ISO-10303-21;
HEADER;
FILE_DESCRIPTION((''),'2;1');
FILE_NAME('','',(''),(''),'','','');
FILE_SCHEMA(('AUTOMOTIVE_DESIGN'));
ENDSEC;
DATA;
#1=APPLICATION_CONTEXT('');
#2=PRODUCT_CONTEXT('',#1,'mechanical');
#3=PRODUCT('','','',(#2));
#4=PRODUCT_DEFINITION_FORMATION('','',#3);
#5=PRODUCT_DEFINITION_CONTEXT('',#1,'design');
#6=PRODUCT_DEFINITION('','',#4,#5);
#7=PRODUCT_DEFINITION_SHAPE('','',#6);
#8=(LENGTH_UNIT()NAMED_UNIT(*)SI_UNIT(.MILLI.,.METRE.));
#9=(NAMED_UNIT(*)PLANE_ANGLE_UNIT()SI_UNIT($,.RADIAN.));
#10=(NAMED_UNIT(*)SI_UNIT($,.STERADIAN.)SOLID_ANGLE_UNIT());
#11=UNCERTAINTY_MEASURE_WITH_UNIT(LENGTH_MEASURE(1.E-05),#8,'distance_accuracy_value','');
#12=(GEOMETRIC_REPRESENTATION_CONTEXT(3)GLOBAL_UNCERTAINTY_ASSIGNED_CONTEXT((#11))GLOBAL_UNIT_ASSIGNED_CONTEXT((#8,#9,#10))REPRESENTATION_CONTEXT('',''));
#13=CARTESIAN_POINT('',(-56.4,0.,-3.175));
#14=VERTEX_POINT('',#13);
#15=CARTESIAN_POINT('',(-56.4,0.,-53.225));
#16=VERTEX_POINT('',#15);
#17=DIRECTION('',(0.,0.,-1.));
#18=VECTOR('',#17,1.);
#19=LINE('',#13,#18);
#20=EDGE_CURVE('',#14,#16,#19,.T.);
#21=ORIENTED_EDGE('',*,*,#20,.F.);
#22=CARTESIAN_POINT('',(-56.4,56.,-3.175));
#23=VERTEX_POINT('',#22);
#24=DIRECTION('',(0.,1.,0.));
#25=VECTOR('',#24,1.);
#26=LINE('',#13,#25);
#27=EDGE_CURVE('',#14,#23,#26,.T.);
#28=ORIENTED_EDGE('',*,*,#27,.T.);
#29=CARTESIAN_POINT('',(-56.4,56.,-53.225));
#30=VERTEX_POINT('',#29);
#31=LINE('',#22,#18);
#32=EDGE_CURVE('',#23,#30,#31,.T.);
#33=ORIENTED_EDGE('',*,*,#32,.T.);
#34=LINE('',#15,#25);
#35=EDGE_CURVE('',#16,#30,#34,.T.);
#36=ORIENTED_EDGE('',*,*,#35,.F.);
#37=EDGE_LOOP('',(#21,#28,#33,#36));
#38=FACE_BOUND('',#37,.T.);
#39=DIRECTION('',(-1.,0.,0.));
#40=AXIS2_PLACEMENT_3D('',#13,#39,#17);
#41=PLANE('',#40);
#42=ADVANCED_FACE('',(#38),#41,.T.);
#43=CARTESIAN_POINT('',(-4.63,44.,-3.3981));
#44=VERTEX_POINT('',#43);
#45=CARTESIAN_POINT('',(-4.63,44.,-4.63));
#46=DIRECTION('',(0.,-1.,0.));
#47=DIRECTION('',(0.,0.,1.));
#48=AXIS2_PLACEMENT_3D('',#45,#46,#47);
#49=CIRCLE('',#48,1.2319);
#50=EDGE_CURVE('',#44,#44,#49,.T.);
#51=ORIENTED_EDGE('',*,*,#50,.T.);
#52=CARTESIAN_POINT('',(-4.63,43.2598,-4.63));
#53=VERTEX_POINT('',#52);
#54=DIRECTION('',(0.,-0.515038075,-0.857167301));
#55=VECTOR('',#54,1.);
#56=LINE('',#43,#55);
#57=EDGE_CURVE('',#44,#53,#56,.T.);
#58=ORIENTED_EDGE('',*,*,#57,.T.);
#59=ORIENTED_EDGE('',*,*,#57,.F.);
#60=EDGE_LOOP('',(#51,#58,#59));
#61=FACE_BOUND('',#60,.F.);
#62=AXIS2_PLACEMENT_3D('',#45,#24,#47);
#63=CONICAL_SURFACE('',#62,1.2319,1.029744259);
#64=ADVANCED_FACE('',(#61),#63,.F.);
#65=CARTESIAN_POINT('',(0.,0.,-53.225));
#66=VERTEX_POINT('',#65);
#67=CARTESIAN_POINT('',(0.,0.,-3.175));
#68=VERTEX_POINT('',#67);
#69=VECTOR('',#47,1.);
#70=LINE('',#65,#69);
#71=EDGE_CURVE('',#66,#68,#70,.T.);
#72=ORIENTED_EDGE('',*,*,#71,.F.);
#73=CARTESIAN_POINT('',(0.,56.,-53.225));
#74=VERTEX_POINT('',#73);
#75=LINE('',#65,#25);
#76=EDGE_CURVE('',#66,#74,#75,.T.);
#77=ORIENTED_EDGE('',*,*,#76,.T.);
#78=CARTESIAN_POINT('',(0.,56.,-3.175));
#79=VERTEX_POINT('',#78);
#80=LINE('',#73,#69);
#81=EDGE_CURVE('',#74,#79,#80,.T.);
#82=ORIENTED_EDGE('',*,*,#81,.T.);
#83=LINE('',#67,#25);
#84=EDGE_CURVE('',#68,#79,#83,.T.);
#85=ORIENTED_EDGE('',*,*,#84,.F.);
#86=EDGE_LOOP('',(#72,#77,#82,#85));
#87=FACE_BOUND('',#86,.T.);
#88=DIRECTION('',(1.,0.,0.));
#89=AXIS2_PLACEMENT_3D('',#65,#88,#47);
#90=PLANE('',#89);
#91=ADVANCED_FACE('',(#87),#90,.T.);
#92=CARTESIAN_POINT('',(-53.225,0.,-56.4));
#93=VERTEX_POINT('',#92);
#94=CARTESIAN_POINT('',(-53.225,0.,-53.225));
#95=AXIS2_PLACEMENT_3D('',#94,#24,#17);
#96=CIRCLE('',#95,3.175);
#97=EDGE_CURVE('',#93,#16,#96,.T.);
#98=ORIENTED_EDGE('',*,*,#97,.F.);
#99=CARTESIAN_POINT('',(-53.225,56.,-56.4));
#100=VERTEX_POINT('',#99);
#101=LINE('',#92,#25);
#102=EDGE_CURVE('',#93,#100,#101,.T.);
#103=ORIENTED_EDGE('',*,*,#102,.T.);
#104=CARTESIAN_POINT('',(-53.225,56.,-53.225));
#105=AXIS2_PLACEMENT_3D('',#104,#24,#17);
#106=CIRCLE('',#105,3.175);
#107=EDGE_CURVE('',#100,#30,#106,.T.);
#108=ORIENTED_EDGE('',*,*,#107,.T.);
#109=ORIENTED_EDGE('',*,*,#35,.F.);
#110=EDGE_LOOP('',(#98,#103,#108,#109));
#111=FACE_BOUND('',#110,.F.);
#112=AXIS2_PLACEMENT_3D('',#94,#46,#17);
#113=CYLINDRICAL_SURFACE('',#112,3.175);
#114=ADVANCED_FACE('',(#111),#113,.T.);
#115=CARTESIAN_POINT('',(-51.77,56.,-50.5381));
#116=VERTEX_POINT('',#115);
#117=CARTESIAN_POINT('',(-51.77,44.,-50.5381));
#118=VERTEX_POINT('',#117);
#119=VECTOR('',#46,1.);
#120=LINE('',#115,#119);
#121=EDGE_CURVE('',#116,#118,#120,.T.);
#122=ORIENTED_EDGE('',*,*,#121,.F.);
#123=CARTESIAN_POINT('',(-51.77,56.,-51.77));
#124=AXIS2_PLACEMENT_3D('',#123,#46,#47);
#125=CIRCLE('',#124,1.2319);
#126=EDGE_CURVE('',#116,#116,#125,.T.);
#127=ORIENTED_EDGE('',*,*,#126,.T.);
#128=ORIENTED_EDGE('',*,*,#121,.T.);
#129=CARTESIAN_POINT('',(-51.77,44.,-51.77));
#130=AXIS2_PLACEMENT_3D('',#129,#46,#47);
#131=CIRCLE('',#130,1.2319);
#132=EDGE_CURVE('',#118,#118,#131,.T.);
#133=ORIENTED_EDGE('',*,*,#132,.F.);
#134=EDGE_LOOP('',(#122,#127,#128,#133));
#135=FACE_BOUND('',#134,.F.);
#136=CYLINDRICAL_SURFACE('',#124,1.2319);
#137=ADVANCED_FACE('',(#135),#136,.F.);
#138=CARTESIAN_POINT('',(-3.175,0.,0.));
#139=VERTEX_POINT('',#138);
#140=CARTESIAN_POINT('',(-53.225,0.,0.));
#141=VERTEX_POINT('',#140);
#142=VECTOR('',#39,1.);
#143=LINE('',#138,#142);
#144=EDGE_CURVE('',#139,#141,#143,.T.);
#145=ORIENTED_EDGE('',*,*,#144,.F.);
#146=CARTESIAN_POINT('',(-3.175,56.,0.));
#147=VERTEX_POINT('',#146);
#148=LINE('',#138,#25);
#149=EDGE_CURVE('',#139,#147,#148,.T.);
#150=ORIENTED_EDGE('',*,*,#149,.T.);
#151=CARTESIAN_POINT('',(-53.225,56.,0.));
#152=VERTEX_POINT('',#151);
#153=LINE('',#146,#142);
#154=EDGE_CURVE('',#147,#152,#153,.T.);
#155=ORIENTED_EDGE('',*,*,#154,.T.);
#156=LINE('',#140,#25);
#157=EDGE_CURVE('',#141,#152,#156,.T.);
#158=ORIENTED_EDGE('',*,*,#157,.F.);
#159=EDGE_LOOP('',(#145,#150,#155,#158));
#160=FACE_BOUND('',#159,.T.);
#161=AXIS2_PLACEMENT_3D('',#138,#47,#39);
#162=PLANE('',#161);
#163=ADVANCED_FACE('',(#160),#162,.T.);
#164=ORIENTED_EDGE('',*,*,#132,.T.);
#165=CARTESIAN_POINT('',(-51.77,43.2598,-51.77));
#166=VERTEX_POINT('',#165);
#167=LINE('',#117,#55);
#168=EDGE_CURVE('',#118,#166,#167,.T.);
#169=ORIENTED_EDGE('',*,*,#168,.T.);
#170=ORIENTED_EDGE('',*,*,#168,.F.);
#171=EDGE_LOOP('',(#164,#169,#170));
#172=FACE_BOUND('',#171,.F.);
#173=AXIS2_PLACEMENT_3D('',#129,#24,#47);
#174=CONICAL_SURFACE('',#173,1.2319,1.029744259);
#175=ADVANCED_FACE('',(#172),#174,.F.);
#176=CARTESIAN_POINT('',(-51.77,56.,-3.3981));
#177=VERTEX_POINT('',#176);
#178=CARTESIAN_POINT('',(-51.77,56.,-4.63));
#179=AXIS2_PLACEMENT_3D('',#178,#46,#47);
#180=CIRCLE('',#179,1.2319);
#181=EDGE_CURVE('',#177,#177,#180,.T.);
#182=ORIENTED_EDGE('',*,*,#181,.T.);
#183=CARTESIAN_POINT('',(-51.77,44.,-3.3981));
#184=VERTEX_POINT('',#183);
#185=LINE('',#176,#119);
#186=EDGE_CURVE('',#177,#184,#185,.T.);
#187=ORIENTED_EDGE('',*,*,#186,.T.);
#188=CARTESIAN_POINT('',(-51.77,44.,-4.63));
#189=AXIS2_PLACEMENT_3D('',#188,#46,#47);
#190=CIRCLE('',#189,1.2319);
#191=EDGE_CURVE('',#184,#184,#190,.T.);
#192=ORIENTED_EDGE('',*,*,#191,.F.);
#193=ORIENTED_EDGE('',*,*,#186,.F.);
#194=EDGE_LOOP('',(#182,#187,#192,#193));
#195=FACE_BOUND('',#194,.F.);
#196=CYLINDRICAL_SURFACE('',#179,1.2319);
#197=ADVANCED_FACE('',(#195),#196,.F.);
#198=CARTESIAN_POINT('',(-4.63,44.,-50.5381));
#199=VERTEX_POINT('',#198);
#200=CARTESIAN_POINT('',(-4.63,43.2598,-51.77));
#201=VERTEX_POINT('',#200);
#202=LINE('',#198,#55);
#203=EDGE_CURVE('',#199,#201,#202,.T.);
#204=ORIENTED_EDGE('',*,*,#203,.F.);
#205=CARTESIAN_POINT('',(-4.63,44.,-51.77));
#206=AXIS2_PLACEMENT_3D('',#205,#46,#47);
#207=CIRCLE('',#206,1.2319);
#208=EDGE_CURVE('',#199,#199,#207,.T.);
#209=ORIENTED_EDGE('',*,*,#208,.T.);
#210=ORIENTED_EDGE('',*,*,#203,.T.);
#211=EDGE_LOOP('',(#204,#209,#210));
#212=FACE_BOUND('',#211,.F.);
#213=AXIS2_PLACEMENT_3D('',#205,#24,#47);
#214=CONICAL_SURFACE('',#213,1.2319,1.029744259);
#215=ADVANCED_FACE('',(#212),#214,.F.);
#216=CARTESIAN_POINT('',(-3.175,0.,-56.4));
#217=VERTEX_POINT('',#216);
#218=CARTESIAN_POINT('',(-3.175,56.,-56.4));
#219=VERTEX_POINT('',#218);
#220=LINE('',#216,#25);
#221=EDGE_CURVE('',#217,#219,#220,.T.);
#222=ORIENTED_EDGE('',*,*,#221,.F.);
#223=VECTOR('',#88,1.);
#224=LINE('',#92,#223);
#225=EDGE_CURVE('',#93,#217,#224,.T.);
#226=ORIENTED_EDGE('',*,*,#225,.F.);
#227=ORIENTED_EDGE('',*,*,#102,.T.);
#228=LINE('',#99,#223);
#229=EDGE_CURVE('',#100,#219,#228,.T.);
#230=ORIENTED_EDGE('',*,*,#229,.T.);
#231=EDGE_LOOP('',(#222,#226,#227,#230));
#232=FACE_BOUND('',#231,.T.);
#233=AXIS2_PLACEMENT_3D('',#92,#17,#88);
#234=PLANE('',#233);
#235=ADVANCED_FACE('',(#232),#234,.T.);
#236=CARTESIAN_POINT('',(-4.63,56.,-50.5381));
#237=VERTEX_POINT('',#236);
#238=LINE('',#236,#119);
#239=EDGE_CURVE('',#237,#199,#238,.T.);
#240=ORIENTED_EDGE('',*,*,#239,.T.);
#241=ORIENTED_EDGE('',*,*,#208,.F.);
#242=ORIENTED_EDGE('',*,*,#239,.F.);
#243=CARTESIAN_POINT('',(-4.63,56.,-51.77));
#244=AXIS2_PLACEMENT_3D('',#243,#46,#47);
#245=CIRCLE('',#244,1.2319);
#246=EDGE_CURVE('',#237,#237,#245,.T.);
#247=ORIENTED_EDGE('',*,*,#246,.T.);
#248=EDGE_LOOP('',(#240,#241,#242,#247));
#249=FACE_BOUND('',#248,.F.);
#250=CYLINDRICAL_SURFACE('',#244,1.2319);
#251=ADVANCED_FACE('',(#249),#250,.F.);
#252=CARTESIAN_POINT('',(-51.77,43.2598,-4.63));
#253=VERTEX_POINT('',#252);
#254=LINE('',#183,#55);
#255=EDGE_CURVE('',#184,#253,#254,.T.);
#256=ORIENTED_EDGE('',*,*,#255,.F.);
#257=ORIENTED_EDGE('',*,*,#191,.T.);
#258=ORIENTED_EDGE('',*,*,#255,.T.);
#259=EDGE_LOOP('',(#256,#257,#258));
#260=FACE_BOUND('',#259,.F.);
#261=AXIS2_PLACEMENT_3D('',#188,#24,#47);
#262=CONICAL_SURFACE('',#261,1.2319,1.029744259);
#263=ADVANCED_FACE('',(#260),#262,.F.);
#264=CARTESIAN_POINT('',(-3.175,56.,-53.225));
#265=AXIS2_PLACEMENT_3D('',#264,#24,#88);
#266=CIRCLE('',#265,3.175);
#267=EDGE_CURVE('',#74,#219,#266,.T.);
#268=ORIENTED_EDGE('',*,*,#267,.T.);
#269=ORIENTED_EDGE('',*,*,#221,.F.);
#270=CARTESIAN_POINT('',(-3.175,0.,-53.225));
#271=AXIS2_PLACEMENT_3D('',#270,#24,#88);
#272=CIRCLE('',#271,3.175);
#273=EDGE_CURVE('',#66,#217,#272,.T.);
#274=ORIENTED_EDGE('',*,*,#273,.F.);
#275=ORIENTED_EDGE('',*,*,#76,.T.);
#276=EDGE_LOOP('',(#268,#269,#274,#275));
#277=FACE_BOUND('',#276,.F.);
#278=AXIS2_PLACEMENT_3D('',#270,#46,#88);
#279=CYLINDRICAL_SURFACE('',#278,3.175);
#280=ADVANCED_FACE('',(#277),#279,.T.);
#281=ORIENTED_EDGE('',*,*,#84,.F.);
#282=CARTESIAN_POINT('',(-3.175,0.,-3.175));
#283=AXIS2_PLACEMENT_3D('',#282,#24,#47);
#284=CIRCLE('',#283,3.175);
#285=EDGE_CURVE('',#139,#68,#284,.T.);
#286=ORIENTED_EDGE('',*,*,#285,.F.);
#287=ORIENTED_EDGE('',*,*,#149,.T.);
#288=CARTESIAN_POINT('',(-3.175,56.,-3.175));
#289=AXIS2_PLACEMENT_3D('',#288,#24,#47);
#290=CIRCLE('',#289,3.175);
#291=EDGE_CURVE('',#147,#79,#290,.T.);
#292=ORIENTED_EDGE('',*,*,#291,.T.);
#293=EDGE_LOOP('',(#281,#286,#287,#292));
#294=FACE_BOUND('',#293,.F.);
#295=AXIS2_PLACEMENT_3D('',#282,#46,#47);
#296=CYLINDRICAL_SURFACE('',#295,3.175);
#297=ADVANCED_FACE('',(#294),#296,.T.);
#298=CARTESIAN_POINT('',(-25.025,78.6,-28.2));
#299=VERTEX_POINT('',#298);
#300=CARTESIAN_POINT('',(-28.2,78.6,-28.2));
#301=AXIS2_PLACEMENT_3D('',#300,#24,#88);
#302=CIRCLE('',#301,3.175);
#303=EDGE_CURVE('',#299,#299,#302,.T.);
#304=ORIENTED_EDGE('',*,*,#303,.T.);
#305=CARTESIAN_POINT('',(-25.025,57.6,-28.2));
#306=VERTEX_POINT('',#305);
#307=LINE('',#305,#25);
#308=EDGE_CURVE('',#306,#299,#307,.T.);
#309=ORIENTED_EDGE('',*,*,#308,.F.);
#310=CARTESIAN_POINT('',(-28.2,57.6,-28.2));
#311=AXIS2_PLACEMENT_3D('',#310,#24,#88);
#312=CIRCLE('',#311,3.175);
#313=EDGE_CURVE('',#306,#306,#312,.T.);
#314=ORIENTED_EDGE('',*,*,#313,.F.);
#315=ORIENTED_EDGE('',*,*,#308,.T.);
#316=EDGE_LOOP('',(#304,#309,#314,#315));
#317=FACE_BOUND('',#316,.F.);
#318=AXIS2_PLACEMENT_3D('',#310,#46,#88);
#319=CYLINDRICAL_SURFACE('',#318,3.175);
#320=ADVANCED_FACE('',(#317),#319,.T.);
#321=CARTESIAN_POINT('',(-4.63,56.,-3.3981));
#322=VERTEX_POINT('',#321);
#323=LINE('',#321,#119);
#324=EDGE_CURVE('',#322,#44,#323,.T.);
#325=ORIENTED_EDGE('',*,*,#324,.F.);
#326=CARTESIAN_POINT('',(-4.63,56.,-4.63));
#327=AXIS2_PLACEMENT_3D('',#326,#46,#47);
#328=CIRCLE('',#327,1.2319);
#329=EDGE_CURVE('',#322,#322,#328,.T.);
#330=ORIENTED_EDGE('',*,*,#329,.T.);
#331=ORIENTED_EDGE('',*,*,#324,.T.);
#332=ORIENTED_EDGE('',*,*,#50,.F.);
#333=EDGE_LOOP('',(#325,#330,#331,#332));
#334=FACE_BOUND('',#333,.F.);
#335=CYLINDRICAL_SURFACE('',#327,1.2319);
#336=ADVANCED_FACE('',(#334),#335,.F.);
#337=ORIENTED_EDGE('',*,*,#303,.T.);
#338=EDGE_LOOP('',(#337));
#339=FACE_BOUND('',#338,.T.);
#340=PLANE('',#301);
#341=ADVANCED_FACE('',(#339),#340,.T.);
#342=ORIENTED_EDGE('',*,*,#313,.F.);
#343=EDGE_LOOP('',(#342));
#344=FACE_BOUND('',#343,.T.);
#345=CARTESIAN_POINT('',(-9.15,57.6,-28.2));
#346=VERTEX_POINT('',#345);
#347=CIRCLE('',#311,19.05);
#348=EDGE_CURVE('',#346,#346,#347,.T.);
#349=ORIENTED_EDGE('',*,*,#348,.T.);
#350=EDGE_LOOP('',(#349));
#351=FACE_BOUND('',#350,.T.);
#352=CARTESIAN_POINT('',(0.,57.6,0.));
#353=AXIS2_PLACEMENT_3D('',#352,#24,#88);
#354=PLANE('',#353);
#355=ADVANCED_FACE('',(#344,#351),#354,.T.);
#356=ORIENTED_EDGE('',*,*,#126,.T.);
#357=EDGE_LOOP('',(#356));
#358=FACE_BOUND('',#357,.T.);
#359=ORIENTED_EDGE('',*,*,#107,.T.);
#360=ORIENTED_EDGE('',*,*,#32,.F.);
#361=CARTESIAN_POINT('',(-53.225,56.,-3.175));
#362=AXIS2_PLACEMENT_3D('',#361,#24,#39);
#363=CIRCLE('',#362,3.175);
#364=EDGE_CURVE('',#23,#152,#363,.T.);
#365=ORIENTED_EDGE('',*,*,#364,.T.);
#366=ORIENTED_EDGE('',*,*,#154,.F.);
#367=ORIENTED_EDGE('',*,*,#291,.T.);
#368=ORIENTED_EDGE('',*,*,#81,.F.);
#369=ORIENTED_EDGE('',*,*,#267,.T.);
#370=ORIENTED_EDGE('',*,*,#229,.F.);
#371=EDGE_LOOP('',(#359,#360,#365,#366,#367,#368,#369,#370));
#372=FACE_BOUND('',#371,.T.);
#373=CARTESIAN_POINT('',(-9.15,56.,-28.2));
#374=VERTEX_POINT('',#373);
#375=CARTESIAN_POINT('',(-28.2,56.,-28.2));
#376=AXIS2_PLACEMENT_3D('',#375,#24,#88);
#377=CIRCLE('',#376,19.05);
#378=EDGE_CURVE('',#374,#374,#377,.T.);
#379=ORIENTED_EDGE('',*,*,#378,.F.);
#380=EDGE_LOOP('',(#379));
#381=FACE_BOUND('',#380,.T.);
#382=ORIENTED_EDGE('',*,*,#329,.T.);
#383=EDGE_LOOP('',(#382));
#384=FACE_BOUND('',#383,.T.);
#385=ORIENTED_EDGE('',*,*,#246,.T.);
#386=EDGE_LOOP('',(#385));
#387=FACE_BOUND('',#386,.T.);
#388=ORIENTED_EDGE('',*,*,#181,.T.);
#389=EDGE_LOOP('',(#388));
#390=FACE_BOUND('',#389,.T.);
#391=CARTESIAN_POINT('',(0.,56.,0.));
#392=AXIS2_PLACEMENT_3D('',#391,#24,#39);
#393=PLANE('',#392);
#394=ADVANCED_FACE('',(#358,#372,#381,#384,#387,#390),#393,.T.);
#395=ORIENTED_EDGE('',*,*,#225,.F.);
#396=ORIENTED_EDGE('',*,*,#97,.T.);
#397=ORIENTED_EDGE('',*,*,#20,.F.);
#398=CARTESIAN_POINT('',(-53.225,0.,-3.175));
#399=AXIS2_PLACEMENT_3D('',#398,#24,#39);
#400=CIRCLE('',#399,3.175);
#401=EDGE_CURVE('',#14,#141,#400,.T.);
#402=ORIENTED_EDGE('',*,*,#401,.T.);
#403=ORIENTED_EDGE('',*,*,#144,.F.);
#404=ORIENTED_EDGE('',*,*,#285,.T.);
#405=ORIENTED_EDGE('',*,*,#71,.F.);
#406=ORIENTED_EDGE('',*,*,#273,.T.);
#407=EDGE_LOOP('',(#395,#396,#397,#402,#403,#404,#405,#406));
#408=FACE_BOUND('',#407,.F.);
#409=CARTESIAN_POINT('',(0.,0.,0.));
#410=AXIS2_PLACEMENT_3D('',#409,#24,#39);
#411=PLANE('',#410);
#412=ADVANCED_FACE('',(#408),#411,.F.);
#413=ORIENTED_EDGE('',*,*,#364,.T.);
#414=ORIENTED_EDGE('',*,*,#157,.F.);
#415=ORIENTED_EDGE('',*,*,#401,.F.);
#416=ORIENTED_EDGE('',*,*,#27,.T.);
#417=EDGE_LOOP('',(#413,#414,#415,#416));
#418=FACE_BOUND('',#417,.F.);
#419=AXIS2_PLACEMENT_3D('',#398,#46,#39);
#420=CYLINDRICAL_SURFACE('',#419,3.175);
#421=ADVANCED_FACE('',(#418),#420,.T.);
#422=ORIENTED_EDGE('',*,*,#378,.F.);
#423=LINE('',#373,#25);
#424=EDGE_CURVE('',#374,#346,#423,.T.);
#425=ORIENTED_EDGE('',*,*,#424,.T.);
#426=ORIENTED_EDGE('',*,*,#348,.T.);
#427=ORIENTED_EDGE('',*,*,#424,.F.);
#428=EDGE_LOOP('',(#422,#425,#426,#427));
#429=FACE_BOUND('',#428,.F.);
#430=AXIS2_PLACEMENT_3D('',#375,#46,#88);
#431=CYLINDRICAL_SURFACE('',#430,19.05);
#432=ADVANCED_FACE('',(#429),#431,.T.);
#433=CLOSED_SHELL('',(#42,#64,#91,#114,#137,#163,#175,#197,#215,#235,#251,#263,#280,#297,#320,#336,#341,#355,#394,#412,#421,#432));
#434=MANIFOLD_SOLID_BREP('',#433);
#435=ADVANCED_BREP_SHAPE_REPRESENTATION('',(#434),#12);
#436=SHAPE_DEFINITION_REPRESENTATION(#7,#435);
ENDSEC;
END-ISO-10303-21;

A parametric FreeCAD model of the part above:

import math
import FreeCAD as App
import Part
import Sketcher

V = App.Vector
Q = App.Units.Quantity

doc = App.newDocument("Part")
body = doc.addObject("PartDesign::Body", "Body")

sketch1 = body.newObject("Sketcher::SketchObject", "Sketch")
sketch1.AttachmentSupport = (doc.getObject("XZ_Plane"), [""])
sketch1.MapMode = "FlatFace"
sketch1.addGeometry(Part.LineSegment(V(-53.2, 0, 0), V(-3.2, 0, 0)), False)
sketch1.addGeometry(Part.ArcOfCircle(Part.Circle(V(-3.2, -3.2, 0), V(0, 0, 1), 3.2), math.radians(0), math.radians(90)), False)
sketch1.addGeometry(Part.LineSegment(V(0, -3.2, 0), V(0, -53.2, 0)), False)
sketch1.addGeometry(Part.ArcOfCircle(Part.Circle(V(-3.2, -53.2, 0), V(0, 0, 1), 3.2), math.radians(-90), math.radians(0)), False)
sketch1.addGeometry(Part.LineSegment(V(-3.2, -56.4, 0), V(-53.2, -56.4, 0)), False)
sketch1.addGeometry(Part.ArcOfCircle(Part.Circle(V(-53.2, -53.2, 0), V(0, 0, 1), 3.2), math.radians(180), math.radians(270)), False)
sketch1.addGeometry(Part.LineSegment(V(-56.4, -53.2, 0), V(-56.4, -3.2, 0)), False)
sketch1.addGeometry(Part.ArcOfCircle(Part.Circle(V(-53.2, -3.2, 0), V(0, 0, 1), 3.2), math.radians(90), math.radians(180)), False)
sketch1.addConstraint(Sketcher.Constraint("Tangent", 0, 2, 1, 2))
sketch1.addConstraint(Sketcher.Constraint("Tangent", 1, 1, 2, 1))
sketch1.addConstraint(Sketcher.Constraint("Tangent", 2, 2, 3, 2))
sketch1.addConstraint(Sketcher.Constraint("Tangent", 3, 1, 4, 1))
sketch1.addConstraint(Sketcher.Constraint("Tangent", 4, 2, 5, 2))
sketch1.addConstraint(Sketcher.Constraint("Tangent", 5, 1, 6, 1))
sketch1.addConstraint(Sketcher.Constraint("Tangent", 6, 2, 7, 2))
sketch1.addConstraint(Sketcher.Constraint("Tangent", 7, 1, 0, 1))
sketch1.addConstraint(Sketcher.Constraint("Horizontal", 0))
sketch1.addConstraint(Sketcher.Constraint("Vertical", 2))
sketch1.addConstraint(Sketcher.Constraint("Horizontal", 4))
sketch1.addConstraint(Sketcher.Constraint("Vertical", 6))
sketch1.addConstraint(Sketcher.Constraint("Equal", 1, 3))
sketch1.addConstraint(Sketcher.Constraint("Equal", 3, 5))
sketch1.addConstraint(Sketcher.Constraint("Equal", 5, 7))
sketch1.addConstraint(Sketcher.Constraint("PointOnObject", 0, 2, -1))
sketch1.addConstraint(Sketcher.Constraint("PointOnObject", 1, 1, -2))
sketch1.addConstraint(Sketcher.Constraint("Equal", 4, 2))
sketch1.addConstraint(Sketcher.Constraint("Radius", 1, Q("0.125 in")))
sketch1.addConstraint(Sketcher.Constraint("DistanceY", 3, 1, -1, 1, Q("56.4 mm")))
pad1 = body.newObject("PartDesign::Pad", "Pad")
pad1.Profile = sketch1
pad1.Length = 56
pad1.Reversed = True

sketch2 = body.newObject("Sketcher::SketchObject", "Sketch001")
sketch2.AttachmentSupport = (doc.getObject("XZ_Plane"), [""])
sketch2.MapMode = "FlatFace"
sketch2.AttachmentOffset = App.Placement(V(0, 0, -56), App.Rotation())
sketch2.addGeometry(Part.Circle(V(-51.8, -51.8, 0), V(0, 0, 1), 1.2), False)
sketch2.addGeometry(Part.Circle(V(-4.6, -51.8, 0), V(0, 0, 1), 1.2), False)
sketch2.addGeometry(Part.Circle(V(-51.8, -4.6, 0), V(0, 0, 1), 1.2), False)
sketch2.addGeometry(Part.Circle(V(-4.6, -4.6, 0), V(0, 0, 1), 1.2), False)
sketch2.addConstraint(Sketcher.Constraint("Equal", 0, 1))
sketch2.addConstraint(Sketcher.Constraint("Equal", 1, 2))
sketch2.addConstraint(Sketcher.Constraint("Equal", 2, 3))
sketch2.addConstraint(Sketcher.Constraint("Horizontal", 0, 3, 1, 3))
sketch2.addConstraint(Sketcher.Constraint("Horizontal", 2, 3, 3, 3))
sketch2.addConstraint(Sketcher.Constraint("Vertical", 0, 3, 2, 3))
sketch2.addConstraint(Sketcher.Constraint("Vertical", 1, 3, 3, 3))
sketch2.addConstraint(Sketcher.Constraint("Diameter", 0, Q("0.097 in")))
sketch2.addConstraint(Sketcher.Constraint("DistanceX", 0, 3, -1, 1, Q("2.0382 in")))
sketch2.addConstraint(Sketcher.Constraint("DistanceY", 0, 3, -1, 1, Q("2.0382 in")))
sketch2.addConstraint(Sketcher.Constraint("DistanceX", 0, 3, 1, 3, Q("1.8559 in")))
sketch2.addConstraint(Sketcher.Constraint("DistanceY", 0, 3, 2, 3, Q("1.8559 in")))
doc.recompute()
hole = body.newObject("PartDesign::Hole", "Hole")
hole.Profile = sketch2
hole.ThreadType = "None"
hole.Diameter = Q("0.097 in")
hole.DepthType = "Dimension"
hole.Depth = 12
hole.DrillPoint = "Angled"
hole.DrillPointAngle = 118
hole.Reversed = True

sketch3 = body.newObject("Sketcher::SketchObject", "Sketch002")
sketch3.AttachmentSupport = (doc.getObject("XZ_Plane"), [""])
sketch3.MapMode = "FlatFace"
sketch3.AttachmentOffset = App.Placement(V(0, 0, -56), App.Rotation())
sketch3.addGeometry(Part.Circle(V(-28, -28, 0), V(0, 0, 1), 19), False)
sketch3.addConstraint(Sketcher.Constraint("Diameter", 0, Q("1.5 in")))
sketch3.addConstraint(Sketcher.Constraint("DistanceX", 0, 3, -1, 1, Q("28.2 mm")))
sketch3.addConstraint(Sketcher.Constraint("DistanceY", 0, 3, -1, 1, Q("28.2 mm")))
pad2 = body.newObject("PartDesign::Pad", "Pad001")
pad2.Profile = sketch3
pad2.Length = Q("0.0629921 in")
pad2.Reversed = True

sketch4 = body.newObject("Sketcher::SketchObject", "Sketch003")
sketch4.AttachmentSupport = (doc.getObject("XZ_Plane"), [""])
sketch4.MapMode = "FlatFace"
sketch4.AttachmentOffset = App.Placement(V(0, 0, -57.6), App.Rotation())
sketch4.addGeometry(Part.Circle(V(-28.2, -28.2, 0), V(0, 0, 1), 3.2), False)
sketch4.addConstraint(Sketcher.Constraint("Diameter", 0, Q("0.25 in")))
sketch4.addConstraint(Sketcher.Constraint("DistanceX", 0, 3, -1, 1, Q("28.2 mm")))
sketch4.addConstraint(Sketcher.Constraint("DistanceY", 0, 3, -1, 1, Q("28.2 mm")))
pad3 = body.newObject("PartDesign::Pad", "Pad002")
pad3.Profile = sketch4
pad3.Length = 21
pad3.Reversed = True

doc.recompute()
